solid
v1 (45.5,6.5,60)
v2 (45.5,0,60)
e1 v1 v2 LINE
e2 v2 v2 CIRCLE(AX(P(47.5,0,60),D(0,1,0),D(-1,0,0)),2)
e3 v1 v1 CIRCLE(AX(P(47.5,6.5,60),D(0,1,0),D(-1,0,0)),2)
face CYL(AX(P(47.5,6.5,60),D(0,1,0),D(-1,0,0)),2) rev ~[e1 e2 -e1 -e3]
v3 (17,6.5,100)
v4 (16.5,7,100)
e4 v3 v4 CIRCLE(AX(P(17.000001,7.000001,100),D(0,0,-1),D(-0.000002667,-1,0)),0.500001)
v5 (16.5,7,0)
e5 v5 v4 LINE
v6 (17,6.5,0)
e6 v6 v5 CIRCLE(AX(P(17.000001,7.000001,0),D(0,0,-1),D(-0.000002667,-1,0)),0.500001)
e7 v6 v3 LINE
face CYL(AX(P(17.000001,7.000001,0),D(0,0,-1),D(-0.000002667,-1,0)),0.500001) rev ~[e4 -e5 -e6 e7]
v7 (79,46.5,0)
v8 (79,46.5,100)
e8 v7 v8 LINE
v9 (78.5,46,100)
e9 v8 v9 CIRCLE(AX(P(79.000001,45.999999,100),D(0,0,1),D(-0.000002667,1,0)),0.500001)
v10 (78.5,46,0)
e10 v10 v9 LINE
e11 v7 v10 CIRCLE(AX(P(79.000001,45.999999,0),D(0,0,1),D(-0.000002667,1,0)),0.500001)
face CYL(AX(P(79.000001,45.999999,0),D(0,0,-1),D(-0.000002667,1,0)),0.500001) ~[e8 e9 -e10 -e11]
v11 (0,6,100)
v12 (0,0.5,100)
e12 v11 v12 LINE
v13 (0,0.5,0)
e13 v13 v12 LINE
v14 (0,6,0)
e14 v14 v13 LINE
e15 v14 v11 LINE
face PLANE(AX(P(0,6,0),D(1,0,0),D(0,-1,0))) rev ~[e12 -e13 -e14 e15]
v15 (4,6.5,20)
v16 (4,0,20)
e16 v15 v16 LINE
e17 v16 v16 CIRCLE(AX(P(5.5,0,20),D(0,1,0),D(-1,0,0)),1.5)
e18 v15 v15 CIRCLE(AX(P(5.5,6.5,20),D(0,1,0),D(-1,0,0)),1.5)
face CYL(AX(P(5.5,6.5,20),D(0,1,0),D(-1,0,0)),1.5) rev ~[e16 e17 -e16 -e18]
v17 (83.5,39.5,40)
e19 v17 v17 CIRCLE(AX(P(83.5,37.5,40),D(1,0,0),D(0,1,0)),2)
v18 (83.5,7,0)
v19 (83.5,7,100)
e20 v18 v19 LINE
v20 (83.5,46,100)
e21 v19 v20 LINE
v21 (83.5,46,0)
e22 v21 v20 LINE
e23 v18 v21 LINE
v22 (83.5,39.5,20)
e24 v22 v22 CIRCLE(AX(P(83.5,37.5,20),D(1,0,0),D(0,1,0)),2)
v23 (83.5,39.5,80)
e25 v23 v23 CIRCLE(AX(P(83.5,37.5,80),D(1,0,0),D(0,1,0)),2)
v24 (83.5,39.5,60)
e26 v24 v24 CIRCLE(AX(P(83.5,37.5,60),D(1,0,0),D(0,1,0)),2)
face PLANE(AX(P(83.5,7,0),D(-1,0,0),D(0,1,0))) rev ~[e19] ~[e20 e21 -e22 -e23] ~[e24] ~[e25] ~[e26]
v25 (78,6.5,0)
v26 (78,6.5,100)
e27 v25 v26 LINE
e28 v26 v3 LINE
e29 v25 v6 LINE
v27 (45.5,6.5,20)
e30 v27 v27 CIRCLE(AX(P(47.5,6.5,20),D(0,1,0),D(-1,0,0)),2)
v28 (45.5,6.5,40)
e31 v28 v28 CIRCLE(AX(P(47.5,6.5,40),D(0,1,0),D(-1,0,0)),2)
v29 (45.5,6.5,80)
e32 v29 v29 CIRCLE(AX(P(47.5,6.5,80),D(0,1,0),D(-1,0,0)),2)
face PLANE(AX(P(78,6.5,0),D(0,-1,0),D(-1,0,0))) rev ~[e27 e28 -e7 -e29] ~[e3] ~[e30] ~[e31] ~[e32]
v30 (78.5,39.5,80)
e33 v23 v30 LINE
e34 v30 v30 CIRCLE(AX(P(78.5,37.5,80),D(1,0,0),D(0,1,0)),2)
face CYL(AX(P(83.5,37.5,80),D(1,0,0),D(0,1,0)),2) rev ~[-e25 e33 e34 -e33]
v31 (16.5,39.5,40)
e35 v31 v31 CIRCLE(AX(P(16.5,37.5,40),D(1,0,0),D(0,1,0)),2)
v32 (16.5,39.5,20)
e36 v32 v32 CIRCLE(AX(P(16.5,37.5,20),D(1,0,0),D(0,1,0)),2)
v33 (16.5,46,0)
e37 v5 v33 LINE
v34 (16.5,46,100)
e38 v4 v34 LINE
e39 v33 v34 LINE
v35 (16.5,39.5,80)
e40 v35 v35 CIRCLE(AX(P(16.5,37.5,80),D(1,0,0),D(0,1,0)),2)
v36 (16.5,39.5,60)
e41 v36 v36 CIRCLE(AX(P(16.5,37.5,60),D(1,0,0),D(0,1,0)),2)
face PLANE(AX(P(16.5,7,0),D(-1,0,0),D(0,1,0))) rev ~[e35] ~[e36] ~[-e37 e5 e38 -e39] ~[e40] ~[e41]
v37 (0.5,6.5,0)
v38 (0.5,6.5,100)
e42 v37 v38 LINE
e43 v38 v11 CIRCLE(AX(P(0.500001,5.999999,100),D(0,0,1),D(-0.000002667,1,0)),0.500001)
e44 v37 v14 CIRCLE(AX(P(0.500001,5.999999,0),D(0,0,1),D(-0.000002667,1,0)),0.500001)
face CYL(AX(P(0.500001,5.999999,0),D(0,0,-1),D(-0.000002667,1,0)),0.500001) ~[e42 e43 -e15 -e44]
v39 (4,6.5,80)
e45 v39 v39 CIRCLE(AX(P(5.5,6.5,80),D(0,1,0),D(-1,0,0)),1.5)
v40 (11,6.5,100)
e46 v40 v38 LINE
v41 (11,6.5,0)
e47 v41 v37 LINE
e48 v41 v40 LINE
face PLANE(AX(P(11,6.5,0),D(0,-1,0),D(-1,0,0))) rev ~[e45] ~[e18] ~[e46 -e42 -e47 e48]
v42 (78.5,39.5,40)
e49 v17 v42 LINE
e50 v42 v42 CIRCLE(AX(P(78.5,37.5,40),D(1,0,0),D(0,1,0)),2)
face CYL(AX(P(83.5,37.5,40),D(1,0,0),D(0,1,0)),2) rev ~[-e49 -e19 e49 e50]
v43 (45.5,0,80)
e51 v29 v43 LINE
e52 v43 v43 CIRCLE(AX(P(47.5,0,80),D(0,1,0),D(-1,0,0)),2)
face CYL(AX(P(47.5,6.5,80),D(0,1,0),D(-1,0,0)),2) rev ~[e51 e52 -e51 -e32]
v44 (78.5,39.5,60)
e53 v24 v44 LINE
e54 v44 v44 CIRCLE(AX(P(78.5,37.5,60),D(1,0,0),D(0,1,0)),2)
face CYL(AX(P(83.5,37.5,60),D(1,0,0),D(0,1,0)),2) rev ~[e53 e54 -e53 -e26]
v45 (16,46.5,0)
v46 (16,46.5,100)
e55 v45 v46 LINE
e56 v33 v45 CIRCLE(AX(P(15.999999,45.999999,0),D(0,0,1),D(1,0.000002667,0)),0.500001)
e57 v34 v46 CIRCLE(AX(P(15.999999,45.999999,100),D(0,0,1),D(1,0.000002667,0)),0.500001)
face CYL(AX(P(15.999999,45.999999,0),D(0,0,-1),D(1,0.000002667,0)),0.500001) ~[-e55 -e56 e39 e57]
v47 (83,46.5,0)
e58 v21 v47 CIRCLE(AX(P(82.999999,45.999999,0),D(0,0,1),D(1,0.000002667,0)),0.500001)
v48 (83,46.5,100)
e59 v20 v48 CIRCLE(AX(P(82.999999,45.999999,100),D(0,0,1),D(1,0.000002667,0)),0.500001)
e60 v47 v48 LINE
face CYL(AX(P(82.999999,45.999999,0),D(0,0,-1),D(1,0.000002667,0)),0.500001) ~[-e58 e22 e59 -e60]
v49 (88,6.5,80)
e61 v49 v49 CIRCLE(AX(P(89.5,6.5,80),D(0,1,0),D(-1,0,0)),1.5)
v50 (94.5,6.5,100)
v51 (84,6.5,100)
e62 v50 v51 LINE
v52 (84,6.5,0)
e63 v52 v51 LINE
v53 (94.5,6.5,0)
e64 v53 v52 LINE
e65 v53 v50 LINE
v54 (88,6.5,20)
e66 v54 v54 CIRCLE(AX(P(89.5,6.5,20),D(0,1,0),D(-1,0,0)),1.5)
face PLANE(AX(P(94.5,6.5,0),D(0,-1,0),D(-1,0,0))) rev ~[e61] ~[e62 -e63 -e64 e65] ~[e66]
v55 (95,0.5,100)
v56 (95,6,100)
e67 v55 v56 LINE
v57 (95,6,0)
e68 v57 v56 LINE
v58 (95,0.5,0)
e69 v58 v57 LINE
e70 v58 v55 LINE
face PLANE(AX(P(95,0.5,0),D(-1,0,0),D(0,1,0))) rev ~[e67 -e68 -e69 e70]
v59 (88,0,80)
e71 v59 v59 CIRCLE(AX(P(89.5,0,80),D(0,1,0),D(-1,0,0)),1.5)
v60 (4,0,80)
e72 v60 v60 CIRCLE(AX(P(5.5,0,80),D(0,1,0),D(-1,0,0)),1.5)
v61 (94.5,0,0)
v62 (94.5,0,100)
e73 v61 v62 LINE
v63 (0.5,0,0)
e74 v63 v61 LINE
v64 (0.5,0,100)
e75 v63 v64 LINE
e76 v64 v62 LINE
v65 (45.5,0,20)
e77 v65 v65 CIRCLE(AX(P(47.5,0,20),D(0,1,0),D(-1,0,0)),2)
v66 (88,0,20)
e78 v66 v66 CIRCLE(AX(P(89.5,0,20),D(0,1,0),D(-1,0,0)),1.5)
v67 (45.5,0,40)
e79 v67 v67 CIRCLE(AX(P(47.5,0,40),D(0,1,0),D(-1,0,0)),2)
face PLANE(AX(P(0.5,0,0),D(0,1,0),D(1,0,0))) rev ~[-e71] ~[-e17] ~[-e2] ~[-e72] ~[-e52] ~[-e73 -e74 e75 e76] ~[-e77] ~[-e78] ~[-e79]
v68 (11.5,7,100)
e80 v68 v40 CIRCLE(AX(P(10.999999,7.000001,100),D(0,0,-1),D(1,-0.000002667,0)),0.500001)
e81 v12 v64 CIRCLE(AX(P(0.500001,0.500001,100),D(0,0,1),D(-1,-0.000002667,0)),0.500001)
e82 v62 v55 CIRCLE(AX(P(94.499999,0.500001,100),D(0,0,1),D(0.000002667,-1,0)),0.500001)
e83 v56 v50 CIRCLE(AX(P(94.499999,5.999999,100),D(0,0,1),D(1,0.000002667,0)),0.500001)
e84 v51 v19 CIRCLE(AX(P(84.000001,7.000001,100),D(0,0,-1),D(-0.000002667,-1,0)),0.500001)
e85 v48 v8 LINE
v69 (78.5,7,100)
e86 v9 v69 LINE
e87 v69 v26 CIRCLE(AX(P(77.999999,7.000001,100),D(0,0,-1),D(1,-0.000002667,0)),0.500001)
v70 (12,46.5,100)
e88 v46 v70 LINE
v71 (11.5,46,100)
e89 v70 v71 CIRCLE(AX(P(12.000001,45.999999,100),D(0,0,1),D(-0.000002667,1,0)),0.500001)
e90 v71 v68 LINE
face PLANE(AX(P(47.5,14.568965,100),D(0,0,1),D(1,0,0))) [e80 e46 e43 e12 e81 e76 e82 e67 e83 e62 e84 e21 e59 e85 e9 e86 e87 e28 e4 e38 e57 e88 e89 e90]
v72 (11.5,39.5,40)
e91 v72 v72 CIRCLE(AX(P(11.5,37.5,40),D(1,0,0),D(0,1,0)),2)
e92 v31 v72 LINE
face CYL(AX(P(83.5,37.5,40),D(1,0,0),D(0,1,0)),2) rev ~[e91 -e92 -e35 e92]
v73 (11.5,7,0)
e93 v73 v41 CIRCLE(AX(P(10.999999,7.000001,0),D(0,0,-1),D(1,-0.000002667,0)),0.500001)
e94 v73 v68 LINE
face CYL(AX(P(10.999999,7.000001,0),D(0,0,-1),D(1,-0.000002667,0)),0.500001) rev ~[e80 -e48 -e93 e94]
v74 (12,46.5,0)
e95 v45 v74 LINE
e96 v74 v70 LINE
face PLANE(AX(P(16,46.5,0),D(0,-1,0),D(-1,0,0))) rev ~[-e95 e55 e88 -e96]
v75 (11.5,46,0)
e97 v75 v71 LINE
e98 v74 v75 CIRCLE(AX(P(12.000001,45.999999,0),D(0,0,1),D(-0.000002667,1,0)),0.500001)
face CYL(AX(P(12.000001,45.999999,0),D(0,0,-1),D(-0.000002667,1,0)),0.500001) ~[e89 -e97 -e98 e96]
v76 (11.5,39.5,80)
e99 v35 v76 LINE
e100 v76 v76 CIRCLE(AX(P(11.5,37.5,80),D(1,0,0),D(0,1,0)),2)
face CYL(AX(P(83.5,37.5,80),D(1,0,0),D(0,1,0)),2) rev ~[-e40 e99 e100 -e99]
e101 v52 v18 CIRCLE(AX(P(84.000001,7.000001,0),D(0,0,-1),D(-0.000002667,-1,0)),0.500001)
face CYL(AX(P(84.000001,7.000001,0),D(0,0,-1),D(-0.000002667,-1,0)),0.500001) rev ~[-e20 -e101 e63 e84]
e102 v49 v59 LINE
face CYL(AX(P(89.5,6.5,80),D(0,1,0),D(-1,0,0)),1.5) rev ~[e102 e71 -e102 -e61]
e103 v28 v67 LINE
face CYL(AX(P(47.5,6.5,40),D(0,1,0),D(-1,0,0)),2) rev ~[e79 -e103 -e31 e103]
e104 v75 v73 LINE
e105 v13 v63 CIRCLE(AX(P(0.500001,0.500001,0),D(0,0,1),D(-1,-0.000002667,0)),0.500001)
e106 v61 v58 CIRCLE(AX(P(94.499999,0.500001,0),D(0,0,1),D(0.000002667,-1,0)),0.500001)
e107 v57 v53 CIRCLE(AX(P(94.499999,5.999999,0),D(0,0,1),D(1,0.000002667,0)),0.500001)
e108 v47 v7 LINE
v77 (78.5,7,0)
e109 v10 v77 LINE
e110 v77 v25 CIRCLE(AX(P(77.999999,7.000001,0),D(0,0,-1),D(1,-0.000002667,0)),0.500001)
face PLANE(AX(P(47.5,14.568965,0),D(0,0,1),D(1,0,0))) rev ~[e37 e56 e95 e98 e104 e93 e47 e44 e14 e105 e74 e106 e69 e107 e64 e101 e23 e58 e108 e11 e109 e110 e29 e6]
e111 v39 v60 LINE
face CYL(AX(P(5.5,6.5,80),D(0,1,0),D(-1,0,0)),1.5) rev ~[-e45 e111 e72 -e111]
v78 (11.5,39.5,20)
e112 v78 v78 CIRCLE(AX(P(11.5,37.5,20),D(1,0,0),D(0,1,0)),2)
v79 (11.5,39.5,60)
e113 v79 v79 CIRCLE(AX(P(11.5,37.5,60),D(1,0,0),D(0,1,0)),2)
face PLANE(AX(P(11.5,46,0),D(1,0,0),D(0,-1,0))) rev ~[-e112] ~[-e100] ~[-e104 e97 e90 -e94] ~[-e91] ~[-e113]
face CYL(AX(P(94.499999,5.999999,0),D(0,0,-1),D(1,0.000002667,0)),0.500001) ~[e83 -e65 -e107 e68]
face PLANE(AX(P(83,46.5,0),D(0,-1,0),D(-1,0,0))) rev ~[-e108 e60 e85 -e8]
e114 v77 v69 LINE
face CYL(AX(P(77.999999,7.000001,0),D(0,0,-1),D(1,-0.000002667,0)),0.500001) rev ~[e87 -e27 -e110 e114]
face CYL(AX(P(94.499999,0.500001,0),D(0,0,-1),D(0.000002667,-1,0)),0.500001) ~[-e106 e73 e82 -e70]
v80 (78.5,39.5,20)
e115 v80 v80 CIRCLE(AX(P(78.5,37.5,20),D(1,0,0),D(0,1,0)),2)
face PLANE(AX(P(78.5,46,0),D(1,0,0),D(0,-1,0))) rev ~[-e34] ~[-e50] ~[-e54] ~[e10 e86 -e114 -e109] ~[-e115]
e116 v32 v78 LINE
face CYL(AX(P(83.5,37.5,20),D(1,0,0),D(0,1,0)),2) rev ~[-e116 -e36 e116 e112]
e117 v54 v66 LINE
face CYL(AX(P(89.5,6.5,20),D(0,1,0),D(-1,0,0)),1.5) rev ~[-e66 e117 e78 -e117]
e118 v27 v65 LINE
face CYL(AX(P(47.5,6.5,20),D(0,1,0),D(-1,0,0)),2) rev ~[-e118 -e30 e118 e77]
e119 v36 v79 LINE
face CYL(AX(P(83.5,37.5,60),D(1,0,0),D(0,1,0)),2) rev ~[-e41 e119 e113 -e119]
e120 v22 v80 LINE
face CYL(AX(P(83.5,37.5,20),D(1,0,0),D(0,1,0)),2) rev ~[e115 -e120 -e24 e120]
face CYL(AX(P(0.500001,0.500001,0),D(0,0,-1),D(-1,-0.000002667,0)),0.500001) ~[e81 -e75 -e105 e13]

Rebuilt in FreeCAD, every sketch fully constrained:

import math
import FreeCAD as App
import Part
import Sketcher

doc = App.newDocument("Part")
params = doc.addObject("Spreadsheet::Sheet", "Params")
for row, (alias, value) in enumerate([
    ("sketch1_radius", "0.500001 mm"),
    ("sketch1_width", "94 mm"),
    ("sketch1_width2", "4 mm"),
    ("sketch1_width3", "61 mm"),
    ("sketch1_height", "39 mm"),
    ("pad1_length", "100 mm"),
    ("sketch2_diameter", "4 mm"),
    ("sketch3_diameter", "4 mm"),
    ("sketch3_diameter2", "3 mm"),
], start=1):
    params.set(f"A{row}", alias)
    params.set(f"B{row}", "=" + value)
    params.setAlias(f"B{row}", alias)

body = doc.addObject("PartDesign::Body", "Body")

# Sketch on XY plane
sketch1 = doc.addObject("Sketcher::SketchObject", "Sketch")
body.addObject(sketch1)
sketch1.AttachmentSupport = (doc.XY_Plane, [""])
sketch1.MapMode = "FlatFace"
sketch1.addGeometry([
    Part.ArcOfCircle(Part.Circle(App.Vector(0.5, 0.5, 0), App.Vector(0, 0, 1), 0.5), math.radians(-180), math.radians(-90)),  # 0
    Part.LineSegment(App.Vector(0.5, 0, 0), App.Vector(94.5, 0, 0)),  # 1
    Part.ArcOfCircle(Part.Circle(App.Vector(94.5, 0.5, 0), App.Vector(0, 0, 1), 0.5), math.radians(-90), math.radians(0)),  # 2
    Part.LineSegment(App.Vector(95, 0.5, 0), App.Vector(95, 6, 0)),  # 3
    Part.ArcOfCircle(Part.Circle(App.Vector(94.5, 6, 0), App.Vector(0, 0, 1), 0.5), math.radians(0), math.radians(90)),  # 4
    Part.LineSegment(App.Vector(94.5, 6.5, 0), App.Vector(84, 6.5, 0)),  # 5
    Part.ArcOfCircle(Part.Circle(App.Vector(84, 7, 0), App.Vector(0, 0, 1), 0.5), math.radians(-180), math.radians(-90)),  # 6
    Part.LineSegment(App.Vector(83.5, 7, 0), App.Vector(83.5, 46, 0)),  # 7
    Part.ArcOfCircle(Part.Circle(App.Vector(83, 46, 0), App.Vector(0, 0, 1), 0.5), math.radians(0), math.radians(90)),  # 8
    Part.LineSegment(App.Vector(83, 46.5, 0), App.Vector(79, 46.5, 0)),  # 9
    Part.ArcOfCircle(Part.Circle(App.Vector(79, 46, 0), App.Vector(0, 0, 1), 0.5), math.radians(90), math.radians(180)),  # 10
    Part.LineSegment(App.Vector(78.5, 46, 0), App.Vector(78.5, 7, 0)),  # 11
    Part.ArcOfCircle(Part.Circle(App.Vector(78, 7, 0), App.Vector(0, 0, 1), 0.5), math.radians(-90), math.radians(0)),  # 12
    Part.LineSegment(App.Vector(78, 6.5, 0), App.Vector(17, 6.5, 0)),  # 13
    Part.ArcOfCircle(Part.Circle(App.Vector(17, 7, 0), App.Vector(0, 0, 1), 0.5), math.radians(-180), math.radians(-90)),  # 14
    Part.LineSegment(App.Vector(16.5, 7, 0), App.Vector(16.5, 46, 0)),  # 15
    Part.ArcOfCircle(Part.Circle(App.Vector(16, 46, 0), App.Vector(0, 0, 1), 0.5), math.radians(0), math.radians(90)),  # 16
    Part.LineSegment(App.Vector(16, 46.5, 0), App.Vector(12, 46.5, 0)),  # 17
    Part.ArcOfCircle(Part.Circle(App.Vector(12, 46, 0), App.Vector(0, 0, 1), 0.5), math.radians(90), math.radians(180)),  # 18
    Part.LineSegment(App.Vector(11.5, 46, 0), App.Vector(11.5, 7, 0)),  # 19
    Part.ArcOfCircle(Part.Circle(App.Vector(11, 7, 0), App.Vector(0, 0, 1), 0.5), math.radians(-90), math.radians(0)),  # 20
    Part.LineSegment(App.Vector(11, 6.5, 0), App.Vector(0.5, 6.5, 0)),  # 21
    Part.ArcOfCircle(Part.Circle(App.Vector(0.5, 6, 0), App.Vector(0, 0, 1), 0.5), math.radians(90), math.radians(180)),  # 22
    Part.LineSegment(App.Vector(0, 6, 0), App.Vector(0, 0.5, 0)),  # 23
], False)
sketch1.addConstraint([
    Sketcher.Constraint("Coincident", 0, 2, 1, 1),
    Sketcher.Constraint("Coincident", 1, 2, 2, 1),
    Sketcher.Constraint("Coincident", 2, 2, 3, 1),
    Sketcher.Constraint("Coincident", 3, 2, 4, 1),
    Sketcher.Constraint("Coincident", 4, 2, 5, 1),
    Sketcher.Constraint("Coincident", 5, 2, 6, 2),
    Sketcher.Constraint("Coincident", 6, 1, 7, 1),
    Sketcher.Constraint("Coincident", 7, 2, 8, 1),
    Sketcher.Constraint("Coincident", 8, 2, 9, 1),
    Sketcher.Constraint("Coincident", 9, 2, 10, 1),
    Sketcher.Constraint("Coincident", 10, 2, 11, 1),
    Sketcher.Constraint("Coincident", 11, 2, 12, 2),
    Sketcher.Constraint("Coincident", 12, 1, 13, 1),
    Sketcher.Constraint("Coincident", 13, 2, 14, 2),
    Sketcher.Constraint("Coincident", 14, 1, 15, 1),
    Sketcher.Constraint("Coincident", 15, 2, 16, 1),
    Sketcher.Constraint("Coincident", 16, 2, 17, 1),
    Sketcher.Constraint("Coincident", 17, 2, 18, 1),
    Sketcher.Constraint("Coincident", 18, 2, 19, 1),
    Sketcher.Constraint("Coincident", 19, 2, 20, 2),
    Sketcher.Constraint("Coincident", 20, 1, 21, 1),
    Sketcher.Constraint("Coincident", 21, 2, 22, 1),
    Sketcher.Constraint("Coincident", 22, 2, 23, 1),
    Sketcher.Constraint("Coincident", 23, 2, 0, 1),
    Sketcher.Constraint("Horizontal", 1),
    Sketcher.Constraint("Vertical", 3),
    Sketcher.Constraint("Horizontal", 5),
    Sketcher.Constraint("Vertical", 7),
    Sketcher.Constraint("Horizontal", 9),
    Sketcher.Constraint("Vertical", 11),
    Sketcher.Constraint("Horizontal", 13),
    Sketcher.Constraint("Vertical", 15),
    Sketcher.Constraint("Horizontal", 17),
    Sketcher.Constraint("Vertical", 19),
    Sketcher.Constraint("Horizontal", 21),
    Sketcher.Constraint("Vertical", 23),
    Sketcher.Constraint("Equal", 0, 2),
    Sketcher.Constraint("Equal", 2, 4),
    Sketcher.Constraint("Equal", 4, 6),
    Sketcher.Constraint("Equal", 6, 8),
    Sketcher.Constraint("Equal", 8, 10),
    Sketcher.Constraint("Equal", 10, 12),
    Sketcher.Constraint("Equal", 12, 14),
    Sketcher.Constraint("Equal", 14, 16),
    Sketcher.Constraint("Equal", 16, 18),
    Sketcher.Constraint("Equal", 18, 20),
    Sketcher.Constraint("Equal", 20, 22),
    Sketcher.Constraint("PointOnObject", 0, 2, -1),
    Sketcher.Constraint("PointOnObject", 22, 2, -2),
    Sketcher.Constraint("Horizontal", 6, 3, 12, 3),
    Sketcher.Constraint("Horizontal", 10, 3, 16, 3),
    Sketcher.Constraint("Horizontal", 14, 3, 20, 3),
    Sketcher.Constraint("Horizontal", 0, 3, 2, 2),
    Sketcher.Constraint("Horizontal", 22, 3, 3, 2),
    Sketcher.Constraint("Horizontal", 20, 3, 6, 1),
    Sketcher.Constraint("Horizontal", 18, 3, 7, 2),
    Sketcher.Constraint("Horizontal", 7, 2, 10, 2),
    Sketcher.Constraint("Horizontal", 6, 1, 11, 2),
    Sketcher.Constraint("Horizontal", 11, 2, 14, 1),
    Sketcher.Constraint("Horizontal", 10, 2, 15, 2),
    Sketcher.Constraint("Horizontal", 15, 2, 18, 2),
    Sketcher.Constraint("Horizontal", 14, 1, 19, 2),
    Sketcher.Constraint("Horizontal", 3, 2, 22, 2),
    Sketcher.Constraint("Horizontal", 2, 2, 23, 2),
    Sketcher.Constraint("Vertical", 22, 3, 0, 2),
    Sketcher.Constraint("Vertical", 4, 3, 1, 2),
    Sketcher.Constraint("Vertical", 1, 2, 4, 2),
    Sketcher.Constraint("Vertical", 6, 3, 5, 2),
    Sketcher.Constraint("Vertical", 10, 3, 9, 2),
    Sketcher.Constraint("Vertical", 14, 3, 13, 2),
    Sketcher.Constraint("Vertical", 18, 3, 17, 2),
    Sketcher.Constraint("Vertical", 0, 2, 21, 2),
    Sketcher.Constraint("Equal", 9, 17),
    Sketcher.Constraint("Equal", 5, 21),
    Sketcher.Constraint("Radius", 0, 0.500001),
    Sketcher.Constraint("DistanceX", 1, 1, 1, 2, 94.0),
    Sketcher.Constraint("DistanceX", 9, 2, 9, 1, 4.0),
    Sketcher.Constraint("DistanceX", 13, 2, 13, 1, 61.0),
    Sketcher.Constraint("DistanceY", 7, 1, 7, 2, 39.0),
    Sketcher.Constraint("DistanceX", 5, 2, 5, 1, 10.5),
    Sketcher.Constraint("DistanceY", 3, 1, 3, 2, 5.5),
    Sketcher.Constraint("DistanceX", -1, 1, 10, 3, 79.000001),
    Sketcher.Constraint("DistanceX", -1, 1, 14, 3, 17.000001),
    Sketcher.Constraint("DistanceX", -1, 1, 18, 3, 12.000001),
])
sketch1.setExpression("Constraints[74]", "Params.sketch1_radius")
sketch1.setExpression("Constraints[75]", "Params.sketch1_width")
sketch1.setExpression("Constraints[76]", "Params.sketch1_width2")
sketch1.setExpression("Constraints[77]", "Params.sketch1_width3")
sketch1.setExpression("Constraints[78]", "Params.sketch1_height")
pad1 = doc.addObject("PartDesign::Pad", "Pad")
body.addObject(pad1)
pad1.Profile = sketch1
pad1.setExpression("Length", "Params.pad1_length")

# Sketch on YZ plane
sketch2 = doc.addObject("Sketcher::SketchObject", "Sketch001")
body.addObject(sketch2)
sketch2.AttachmentSupport = (doc.YZ_Plane, [""])
sketch2.MapMode = "FlatFace"
sketch2.AttachmentOffset = App.Placement(App.Vector(0, 0, 83.5), App.Rotation())
sketch2.addGeometry([
    Part.Circle(App.Vector(37.5, 80, 0), App.Vector(0, 0, 1), 2),
    Part.Circle(App.Vector(37.5, 60, 0), App.Vector(0, 0, 1), 2),
    Part.Circle(App.Vector(37.5, 40, 0), App.Vector(0, 0, 1), 2),
    Part.Circle(App.Vector(37.5, 20, 0), App.Vector(0, 0, 1), 2),
], False)
sketch2.addConstraint([
    Sketcher.Constraint("Equal", 0, 1),
    Sketcher.Constraint("Equal", 1, 2),
    Sketcher.Constraint("Equal", 2, 3),
    Sketcher.Constraint("Vertical", 0, 3, 1, 3),
    Sketcher.Constraint("Vertical", 1, 3, 2, 3),
    Sketcher.Constraint("Vertical", 2, 3, 3, 3),
    Sketcher.Constraint("Diameter", 0, 4.0),
    Sketcher.Constraint("DistanceY", -1, 1, 0, 3, 80.0),
    Sketcher.Constraint("DistanceY", -1, 1, 1, 3, 60.0),
    Sketcher.Constraint("DistanceY", -1, 1, 2, 3, 40.0),
    Sketcher.Constraint("DistanceY", -1, 1, 3, 3, 20.0),
    Sketcher.Constraint("DistanceX", -1, 1, 0, 3, 37.5),
])
sketch2.setExpression("Constraints[6]", "Params.sketch2_diameter")
pocket1 = doc.addObject("PartDesign::Pocket", "Pocket")
body.addObject(pocket1)
pocket1.Profile = sketch2
pocket1.Type = "ThroughAll"

# Sketch on XZ plane
sketch3 = doc.addObject("Sketcher::SketchObject", "Sketch002")
body.addObject(sketch3)
sketch3.AttachmentSupport = (doc.XZ_Plane, [""])
sketch3.MapMode = "FlatFace"
sketch3.AttachmentOffset = App.Placement(App.Vector(0, 0, -6.5), App.Rotation())
sketch3.addGeometry([
    Part.Circle(App.Vector(47.5, 80, 0), App.Vector(0, 0, 1), 2),  # 0
    Part.Circle(App.Vector(47.5, 60, 0), App.Vector(0, 0, 1), 2),  # 1
    Part.Circle(App.Vector(47.5, 40, 0), App.Vector(0, 0, 1), 2),  # 2
    Part.Circle(App.Vector(47.5, 20, 0), App.Vector(0, 0, 1), 2),  # 3
    Part.Circle(App.Vector(5.5, 80, 0), App.Vector(0, 0, 1), 1.5),  # 4
    Part.Circle(App.Vector(5.5, 20, 0), App.Vector(0, 0, 1), 1.5),  # 5
    Part.Circle(App.Vector(89.5, 80, 0), App.Vector(0, 0, 1), 1.5),  # 6
    Part.Circle(App.Vector(89.5, 20, 0), App.Vector(0, 0, 1), 1.5),  # 7
], False)
sketch3.addConstraint([
    Sketcher.Constraint("Equal", 0, 1),
    Sketcher.Constraint("Equal", 1, 2),
    Sketcher.Constraint("Equal", 2, 3),
    Sketcher.Constraint("Equal", 4, 5),
    Sketcher.Constraint("Equal", 5, 6),
    Sketcher.Constraint("Equal", 6, 7),
    Sketcher.Constraint("Horizontal", 0, 3, 4, 3),
    Sketcher.Constraint("Horizontal", 3, 3, 5, 3),
    Sketcher.Constraint("Horizontal", 4, 3, 6, 3),
    Sketcher.Constraint("Horizontal", 5, 3, 7, 3),
    Sketcher.Constraint("Vertical", 0, 3, 1, 3),
    Sketcher.Constraint("Vertical", 1, 3, 2, 3),
    Sketcher.Constraint("Vertical", 2, 3, 3, 3),
    Sketcher.Constraint("Vertical", 4, 3, 5, 3),
    Sketcher.Constraint("Vertical", 6, 3, 7, 3),
    Sketcher.Constraint("Diameter", 0, 4.0),
    Sketcher.Constraint("Diameter", 4, 3.0),
    Sketcher.Constraint("DistanceY", -1, 1, 0, 3, 80.0),
    Sketcher.Constraint("DistanceY", -1, 1, 1, 3, 60.0),
    Sketcher.Constraint("DistanceY", -1, 1, 2, 3, 40.0),
    Sketcher.Constraint("DistanceY", -1, 1, 3, 3, 20.0),
    Sketcher.Constraint("DistanceX", 4, 3, 0, 3, 42.0),
    Sketcher.Constraint("DistanceX", 0, 3, 6, 3, 42.0),
    Sketcher.Constraint("DistanceX", -1, 1, 0, 3, 47.5),
])
sketch3.setExpression("Constraints[15]", "Params.sketch3_diameter")
sketch3.setExpression("Constraints[16]", "Params.sketch3_diameter2")
pocket2 = doc.addObject("PartDesign::Pocket", "Pocket001")
body.addObject(pocket2)
pocket2.Profile = sketch3
pocket2.Type = "ThroughAll"
pocket2.Reversed = True

doc.recompute()
